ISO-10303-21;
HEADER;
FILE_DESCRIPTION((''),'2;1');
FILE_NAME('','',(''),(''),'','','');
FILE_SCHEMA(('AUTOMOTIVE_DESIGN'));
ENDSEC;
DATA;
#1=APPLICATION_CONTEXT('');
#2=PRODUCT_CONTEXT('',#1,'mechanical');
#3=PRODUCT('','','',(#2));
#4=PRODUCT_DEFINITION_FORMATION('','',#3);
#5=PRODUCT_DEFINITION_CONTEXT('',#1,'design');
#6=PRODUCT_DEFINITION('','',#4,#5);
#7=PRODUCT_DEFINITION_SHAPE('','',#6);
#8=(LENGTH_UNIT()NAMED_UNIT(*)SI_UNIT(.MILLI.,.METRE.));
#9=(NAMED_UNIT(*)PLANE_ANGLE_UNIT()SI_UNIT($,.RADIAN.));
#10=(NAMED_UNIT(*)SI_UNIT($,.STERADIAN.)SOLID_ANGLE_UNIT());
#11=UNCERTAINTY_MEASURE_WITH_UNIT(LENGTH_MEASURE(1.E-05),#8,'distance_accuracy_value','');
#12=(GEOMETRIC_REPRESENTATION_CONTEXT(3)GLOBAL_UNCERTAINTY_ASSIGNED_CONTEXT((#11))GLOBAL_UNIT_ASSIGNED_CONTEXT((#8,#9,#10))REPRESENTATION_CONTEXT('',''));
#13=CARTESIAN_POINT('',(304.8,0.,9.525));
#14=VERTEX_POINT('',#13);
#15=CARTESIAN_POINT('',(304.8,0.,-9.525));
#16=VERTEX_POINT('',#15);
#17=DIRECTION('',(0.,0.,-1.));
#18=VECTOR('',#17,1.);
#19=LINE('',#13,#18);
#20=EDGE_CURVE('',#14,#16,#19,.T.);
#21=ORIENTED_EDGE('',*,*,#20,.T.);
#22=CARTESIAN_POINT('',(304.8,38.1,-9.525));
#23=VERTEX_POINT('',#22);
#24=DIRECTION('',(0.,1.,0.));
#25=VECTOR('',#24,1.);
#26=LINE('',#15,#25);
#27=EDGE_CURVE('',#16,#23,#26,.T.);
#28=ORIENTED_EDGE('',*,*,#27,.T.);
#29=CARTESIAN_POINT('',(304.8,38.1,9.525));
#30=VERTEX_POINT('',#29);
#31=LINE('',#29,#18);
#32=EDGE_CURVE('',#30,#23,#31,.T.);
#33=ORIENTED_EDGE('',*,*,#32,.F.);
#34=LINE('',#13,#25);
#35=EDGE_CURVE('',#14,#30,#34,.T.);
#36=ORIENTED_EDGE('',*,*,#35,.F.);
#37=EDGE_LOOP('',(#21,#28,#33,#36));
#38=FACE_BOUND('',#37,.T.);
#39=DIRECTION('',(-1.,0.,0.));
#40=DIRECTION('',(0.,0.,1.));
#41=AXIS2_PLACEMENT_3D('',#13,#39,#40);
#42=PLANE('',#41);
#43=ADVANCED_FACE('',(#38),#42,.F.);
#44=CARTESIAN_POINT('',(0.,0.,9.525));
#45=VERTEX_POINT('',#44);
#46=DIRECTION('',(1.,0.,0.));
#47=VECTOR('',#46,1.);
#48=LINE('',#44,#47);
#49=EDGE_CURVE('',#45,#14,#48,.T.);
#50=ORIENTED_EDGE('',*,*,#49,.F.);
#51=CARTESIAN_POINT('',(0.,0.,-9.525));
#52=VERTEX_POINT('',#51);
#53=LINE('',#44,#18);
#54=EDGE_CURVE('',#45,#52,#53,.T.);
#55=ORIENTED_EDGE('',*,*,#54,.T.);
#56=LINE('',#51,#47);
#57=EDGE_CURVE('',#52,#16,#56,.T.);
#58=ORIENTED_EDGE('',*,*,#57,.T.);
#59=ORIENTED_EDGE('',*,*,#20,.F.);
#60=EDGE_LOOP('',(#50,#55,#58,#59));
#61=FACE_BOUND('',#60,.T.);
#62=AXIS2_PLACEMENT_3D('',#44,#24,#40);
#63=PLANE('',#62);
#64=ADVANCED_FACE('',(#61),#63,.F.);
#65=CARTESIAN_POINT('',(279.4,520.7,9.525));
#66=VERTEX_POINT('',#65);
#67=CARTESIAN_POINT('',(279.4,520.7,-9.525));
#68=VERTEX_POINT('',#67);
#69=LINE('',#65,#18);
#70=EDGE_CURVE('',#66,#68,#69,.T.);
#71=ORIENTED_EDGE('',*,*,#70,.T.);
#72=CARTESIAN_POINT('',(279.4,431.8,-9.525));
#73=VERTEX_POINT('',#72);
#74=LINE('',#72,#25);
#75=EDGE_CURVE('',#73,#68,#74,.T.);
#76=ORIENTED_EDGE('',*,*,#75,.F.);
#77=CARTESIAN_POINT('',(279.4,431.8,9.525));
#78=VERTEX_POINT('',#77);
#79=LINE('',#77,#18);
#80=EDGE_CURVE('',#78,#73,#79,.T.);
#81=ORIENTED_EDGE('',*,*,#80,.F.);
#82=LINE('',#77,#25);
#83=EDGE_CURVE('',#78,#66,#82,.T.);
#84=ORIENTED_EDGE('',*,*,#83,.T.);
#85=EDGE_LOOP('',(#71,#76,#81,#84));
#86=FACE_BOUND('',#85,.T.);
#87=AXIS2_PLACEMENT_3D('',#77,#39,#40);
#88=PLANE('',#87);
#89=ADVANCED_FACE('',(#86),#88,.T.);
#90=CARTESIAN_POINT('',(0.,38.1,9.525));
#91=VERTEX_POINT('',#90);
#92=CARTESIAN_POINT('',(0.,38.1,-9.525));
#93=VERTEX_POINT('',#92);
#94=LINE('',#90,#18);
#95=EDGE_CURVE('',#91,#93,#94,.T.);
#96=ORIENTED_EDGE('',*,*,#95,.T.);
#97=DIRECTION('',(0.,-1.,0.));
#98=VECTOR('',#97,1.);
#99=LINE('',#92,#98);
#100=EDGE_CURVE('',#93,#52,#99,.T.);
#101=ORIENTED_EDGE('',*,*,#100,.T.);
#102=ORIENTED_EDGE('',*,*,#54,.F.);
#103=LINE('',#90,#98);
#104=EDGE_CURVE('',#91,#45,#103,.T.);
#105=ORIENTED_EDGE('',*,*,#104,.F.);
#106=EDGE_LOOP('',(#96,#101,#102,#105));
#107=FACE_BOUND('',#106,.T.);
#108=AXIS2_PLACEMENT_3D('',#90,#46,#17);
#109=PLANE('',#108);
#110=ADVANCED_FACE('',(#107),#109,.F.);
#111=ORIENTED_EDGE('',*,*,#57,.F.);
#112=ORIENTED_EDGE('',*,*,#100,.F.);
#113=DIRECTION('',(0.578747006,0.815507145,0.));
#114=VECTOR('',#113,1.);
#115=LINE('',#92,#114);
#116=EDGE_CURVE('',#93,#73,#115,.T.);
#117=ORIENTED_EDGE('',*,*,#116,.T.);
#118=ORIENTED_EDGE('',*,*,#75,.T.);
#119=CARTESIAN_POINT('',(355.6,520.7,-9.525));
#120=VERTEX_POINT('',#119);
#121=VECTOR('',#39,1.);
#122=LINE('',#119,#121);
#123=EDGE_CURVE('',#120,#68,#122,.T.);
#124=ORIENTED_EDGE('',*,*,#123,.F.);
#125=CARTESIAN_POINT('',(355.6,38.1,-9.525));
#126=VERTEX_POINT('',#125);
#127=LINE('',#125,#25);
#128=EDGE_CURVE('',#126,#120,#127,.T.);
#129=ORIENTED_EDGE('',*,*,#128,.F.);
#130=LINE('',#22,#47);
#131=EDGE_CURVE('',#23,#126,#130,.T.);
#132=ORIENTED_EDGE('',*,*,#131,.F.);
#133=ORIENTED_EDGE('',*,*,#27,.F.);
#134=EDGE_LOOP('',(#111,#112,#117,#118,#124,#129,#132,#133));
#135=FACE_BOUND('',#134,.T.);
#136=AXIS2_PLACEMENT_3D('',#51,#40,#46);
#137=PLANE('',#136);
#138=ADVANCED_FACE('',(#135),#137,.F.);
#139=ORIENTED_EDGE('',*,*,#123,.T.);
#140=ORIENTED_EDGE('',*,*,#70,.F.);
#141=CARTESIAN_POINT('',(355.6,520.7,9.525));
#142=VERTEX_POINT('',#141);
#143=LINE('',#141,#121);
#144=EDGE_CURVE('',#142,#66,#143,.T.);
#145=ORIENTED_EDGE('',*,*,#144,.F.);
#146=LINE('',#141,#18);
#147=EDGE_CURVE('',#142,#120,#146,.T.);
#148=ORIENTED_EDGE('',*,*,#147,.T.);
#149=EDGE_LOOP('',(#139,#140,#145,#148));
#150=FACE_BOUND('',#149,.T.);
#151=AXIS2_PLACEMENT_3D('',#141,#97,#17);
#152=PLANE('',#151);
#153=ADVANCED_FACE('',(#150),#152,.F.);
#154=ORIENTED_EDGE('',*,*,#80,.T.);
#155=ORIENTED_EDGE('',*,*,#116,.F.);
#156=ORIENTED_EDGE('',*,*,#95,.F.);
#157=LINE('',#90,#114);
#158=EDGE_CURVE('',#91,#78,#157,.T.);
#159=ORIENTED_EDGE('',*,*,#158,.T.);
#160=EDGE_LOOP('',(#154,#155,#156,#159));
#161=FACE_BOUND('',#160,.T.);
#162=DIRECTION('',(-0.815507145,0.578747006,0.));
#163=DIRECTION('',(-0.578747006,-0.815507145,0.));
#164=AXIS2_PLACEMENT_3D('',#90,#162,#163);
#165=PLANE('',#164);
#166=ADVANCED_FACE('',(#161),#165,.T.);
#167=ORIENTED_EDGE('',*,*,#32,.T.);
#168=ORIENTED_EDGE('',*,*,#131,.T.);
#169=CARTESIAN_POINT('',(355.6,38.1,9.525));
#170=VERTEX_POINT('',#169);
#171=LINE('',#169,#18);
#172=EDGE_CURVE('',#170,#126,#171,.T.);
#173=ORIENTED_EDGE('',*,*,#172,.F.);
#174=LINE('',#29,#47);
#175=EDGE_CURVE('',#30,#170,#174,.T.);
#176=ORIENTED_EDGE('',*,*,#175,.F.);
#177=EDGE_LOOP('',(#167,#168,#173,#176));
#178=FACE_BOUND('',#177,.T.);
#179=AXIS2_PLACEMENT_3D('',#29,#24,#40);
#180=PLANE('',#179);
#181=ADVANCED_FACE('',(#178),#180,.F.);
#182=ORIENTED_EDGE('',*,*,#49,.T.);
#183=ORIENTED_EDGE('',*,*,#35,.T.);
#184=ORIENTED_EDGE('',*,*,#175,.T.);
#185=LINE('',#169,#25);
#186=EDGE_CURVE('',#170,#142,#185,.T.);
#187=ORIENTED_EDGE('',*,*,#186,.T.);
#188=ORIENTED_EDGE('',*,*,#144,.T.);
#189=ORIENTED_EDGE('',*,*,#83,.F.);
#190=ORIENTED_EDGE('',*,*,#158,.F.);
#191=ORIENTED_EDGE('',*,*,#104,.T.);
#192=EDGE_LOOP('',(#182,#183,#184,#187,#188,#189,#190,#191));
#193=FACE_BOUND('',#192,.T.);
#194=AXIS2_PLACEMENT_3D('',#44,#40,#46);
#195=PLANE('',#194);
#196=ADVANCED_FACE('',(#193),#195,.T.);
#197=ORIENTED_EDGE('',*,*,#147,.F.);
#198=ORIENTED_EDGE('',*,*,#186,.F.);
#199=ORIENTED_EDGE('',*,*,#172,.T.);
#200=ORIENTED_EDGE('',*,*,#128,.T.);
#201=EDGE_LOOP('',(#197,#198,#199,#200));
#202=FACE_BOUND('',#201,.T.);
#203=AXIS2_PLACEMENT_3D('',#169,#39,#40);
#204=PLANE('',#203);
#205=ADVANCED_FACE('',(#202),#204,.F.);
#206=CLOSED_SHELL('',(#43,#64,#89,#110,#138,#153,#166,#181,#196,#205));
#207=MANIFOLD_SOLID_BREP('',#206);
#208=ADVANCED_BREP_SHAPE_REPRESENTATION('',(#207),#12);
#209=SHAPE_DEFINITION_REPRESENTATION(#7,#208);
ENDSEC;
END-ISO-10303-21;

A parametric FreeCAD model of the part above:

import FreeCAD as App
import Part
import Sketcher
Q = App.Units.Quantity


def add_polygon(sketch, points):
    """Adds a closed chain of lines whose ends are joined by coincident constraints."""
    first, n = sketch.GeometryCount, len(points)
    for a, b in zip(points, points[1:] + points[:1]):
        sketch.addGeometry(Part.LineSegment(App.Vector(*a, 0), App.Vector(*b, 0)), False)
    for i in range(n):
        sketch.addConstraint(Sketcher.Constraint("Coincident", first + i, 2, first + (i + 1) % n, 1))

doc = App.newDocument("Part")
params = doc.addObject("Spreadsheet::Sheet", "Params")
for row, (alias, value) in enumerate([
    ("sketch1_width", "12 in"),
    ("sketch1_width2", "2 in"),
    ("sketch1_width3", "3 in"),
    ("sketch1_height", "19 in"),
    ("sketch1_height2", "1.5 in"),
    ("pad1_length", "0.75 in"),
], start=1):
    params.set(f"A{row}", alias)
    params.set(f"B{row}", "=" + value)
    params.setAlias(f"B{row}", alias)

body = doc.addObject("PartDesign::Body", "Body")

# Sketch on XY plane
sketch1 = body.newObject("Sketcher::SketchObject", "Sketch")
sketch1.AttachmentSupport = (doc.getObject("XY_Plane"), [""])
sketch1.MapMode = "FlatFace"
add_polygon(sketch1, [(0, 0), (304.8, 0), (304.8, 38.1), (355.6, 38.1), (355.6, 520.7), (279.4, 520.7), (279.4, 431.8), (0, 38.1)])  # lines 0-7
sketch1.addConstraint(Sketcher.Constraint("Horizontal", 0))
sketch1.addConstraint(Sketcher.Constraint("Vertical", 1))
sketch1.addConstraint(Sketcher.Constraint("Horizontal", 2))
sketch1.addConstraint(Sketcher.Constraint("Vertical", 3))
sketch1.addConstraint(Sketcher.Constraint("Horizontal", 4))
sketch1.addConstraint(Sketcher.Constraint("Vertical", 5))
sketch1.addConstraint(Sketcher.Constraint("Vertical", 7))
sketch1.addConstraint(Sketcher.Constraint("Coincident", 7, 2, -1, 1))
sketch1.addConstraint(Sketcher.Constraint("Horizontal", 2, 2, 6, 2))
sketch1.addConstraint(Sketcher.Constraint("DistanceX", 0, 1, 0, 2, Q("12 in")))
sketch1.addConstraint(Sketcher.Constraint("DistanceX", 2, 1, 2, 2, Q("2 in")))
sketch1.addConstraint(Sketcher.Constraint("DistanceX", 4, 2, 4, 1, Q("3 in")))
sketch1.addConstraint(Sketcher.Constraint("DistanceY", 3, 1, 3, 2, Q("19 in")))
sketch1.addConstraint(Sketcher.Constraint("DistanceY", 1, 1, 1, 2, Q("1.5 in")))
sketch1.addConstraint(Sketcher.Constraint("DistanceY", 5, 2, 5, 1, Q("3.5 in")))
sketch1.setExpression("Constraints[17]", "Params.sketch1_width")
sketch1.setExpression("Constraints[18]", "Params.sketch1_width2")
sketch1.setExpression("Constraints[19]", "Params.sketch1_width3")
sketch1.setExpression("Constraints[20]", "Params.sketch1_height")
sketch1.setExpression("Constraints[21]", "Params.sketch1_height2")
pad1 = body.newObject("PartDesign::Pad", "Pad")
pad1.Profile = sketch1
pad1.setExpression("Length", "Params.pad1_length")
pad1.Midplane = True

doc.recompute()
